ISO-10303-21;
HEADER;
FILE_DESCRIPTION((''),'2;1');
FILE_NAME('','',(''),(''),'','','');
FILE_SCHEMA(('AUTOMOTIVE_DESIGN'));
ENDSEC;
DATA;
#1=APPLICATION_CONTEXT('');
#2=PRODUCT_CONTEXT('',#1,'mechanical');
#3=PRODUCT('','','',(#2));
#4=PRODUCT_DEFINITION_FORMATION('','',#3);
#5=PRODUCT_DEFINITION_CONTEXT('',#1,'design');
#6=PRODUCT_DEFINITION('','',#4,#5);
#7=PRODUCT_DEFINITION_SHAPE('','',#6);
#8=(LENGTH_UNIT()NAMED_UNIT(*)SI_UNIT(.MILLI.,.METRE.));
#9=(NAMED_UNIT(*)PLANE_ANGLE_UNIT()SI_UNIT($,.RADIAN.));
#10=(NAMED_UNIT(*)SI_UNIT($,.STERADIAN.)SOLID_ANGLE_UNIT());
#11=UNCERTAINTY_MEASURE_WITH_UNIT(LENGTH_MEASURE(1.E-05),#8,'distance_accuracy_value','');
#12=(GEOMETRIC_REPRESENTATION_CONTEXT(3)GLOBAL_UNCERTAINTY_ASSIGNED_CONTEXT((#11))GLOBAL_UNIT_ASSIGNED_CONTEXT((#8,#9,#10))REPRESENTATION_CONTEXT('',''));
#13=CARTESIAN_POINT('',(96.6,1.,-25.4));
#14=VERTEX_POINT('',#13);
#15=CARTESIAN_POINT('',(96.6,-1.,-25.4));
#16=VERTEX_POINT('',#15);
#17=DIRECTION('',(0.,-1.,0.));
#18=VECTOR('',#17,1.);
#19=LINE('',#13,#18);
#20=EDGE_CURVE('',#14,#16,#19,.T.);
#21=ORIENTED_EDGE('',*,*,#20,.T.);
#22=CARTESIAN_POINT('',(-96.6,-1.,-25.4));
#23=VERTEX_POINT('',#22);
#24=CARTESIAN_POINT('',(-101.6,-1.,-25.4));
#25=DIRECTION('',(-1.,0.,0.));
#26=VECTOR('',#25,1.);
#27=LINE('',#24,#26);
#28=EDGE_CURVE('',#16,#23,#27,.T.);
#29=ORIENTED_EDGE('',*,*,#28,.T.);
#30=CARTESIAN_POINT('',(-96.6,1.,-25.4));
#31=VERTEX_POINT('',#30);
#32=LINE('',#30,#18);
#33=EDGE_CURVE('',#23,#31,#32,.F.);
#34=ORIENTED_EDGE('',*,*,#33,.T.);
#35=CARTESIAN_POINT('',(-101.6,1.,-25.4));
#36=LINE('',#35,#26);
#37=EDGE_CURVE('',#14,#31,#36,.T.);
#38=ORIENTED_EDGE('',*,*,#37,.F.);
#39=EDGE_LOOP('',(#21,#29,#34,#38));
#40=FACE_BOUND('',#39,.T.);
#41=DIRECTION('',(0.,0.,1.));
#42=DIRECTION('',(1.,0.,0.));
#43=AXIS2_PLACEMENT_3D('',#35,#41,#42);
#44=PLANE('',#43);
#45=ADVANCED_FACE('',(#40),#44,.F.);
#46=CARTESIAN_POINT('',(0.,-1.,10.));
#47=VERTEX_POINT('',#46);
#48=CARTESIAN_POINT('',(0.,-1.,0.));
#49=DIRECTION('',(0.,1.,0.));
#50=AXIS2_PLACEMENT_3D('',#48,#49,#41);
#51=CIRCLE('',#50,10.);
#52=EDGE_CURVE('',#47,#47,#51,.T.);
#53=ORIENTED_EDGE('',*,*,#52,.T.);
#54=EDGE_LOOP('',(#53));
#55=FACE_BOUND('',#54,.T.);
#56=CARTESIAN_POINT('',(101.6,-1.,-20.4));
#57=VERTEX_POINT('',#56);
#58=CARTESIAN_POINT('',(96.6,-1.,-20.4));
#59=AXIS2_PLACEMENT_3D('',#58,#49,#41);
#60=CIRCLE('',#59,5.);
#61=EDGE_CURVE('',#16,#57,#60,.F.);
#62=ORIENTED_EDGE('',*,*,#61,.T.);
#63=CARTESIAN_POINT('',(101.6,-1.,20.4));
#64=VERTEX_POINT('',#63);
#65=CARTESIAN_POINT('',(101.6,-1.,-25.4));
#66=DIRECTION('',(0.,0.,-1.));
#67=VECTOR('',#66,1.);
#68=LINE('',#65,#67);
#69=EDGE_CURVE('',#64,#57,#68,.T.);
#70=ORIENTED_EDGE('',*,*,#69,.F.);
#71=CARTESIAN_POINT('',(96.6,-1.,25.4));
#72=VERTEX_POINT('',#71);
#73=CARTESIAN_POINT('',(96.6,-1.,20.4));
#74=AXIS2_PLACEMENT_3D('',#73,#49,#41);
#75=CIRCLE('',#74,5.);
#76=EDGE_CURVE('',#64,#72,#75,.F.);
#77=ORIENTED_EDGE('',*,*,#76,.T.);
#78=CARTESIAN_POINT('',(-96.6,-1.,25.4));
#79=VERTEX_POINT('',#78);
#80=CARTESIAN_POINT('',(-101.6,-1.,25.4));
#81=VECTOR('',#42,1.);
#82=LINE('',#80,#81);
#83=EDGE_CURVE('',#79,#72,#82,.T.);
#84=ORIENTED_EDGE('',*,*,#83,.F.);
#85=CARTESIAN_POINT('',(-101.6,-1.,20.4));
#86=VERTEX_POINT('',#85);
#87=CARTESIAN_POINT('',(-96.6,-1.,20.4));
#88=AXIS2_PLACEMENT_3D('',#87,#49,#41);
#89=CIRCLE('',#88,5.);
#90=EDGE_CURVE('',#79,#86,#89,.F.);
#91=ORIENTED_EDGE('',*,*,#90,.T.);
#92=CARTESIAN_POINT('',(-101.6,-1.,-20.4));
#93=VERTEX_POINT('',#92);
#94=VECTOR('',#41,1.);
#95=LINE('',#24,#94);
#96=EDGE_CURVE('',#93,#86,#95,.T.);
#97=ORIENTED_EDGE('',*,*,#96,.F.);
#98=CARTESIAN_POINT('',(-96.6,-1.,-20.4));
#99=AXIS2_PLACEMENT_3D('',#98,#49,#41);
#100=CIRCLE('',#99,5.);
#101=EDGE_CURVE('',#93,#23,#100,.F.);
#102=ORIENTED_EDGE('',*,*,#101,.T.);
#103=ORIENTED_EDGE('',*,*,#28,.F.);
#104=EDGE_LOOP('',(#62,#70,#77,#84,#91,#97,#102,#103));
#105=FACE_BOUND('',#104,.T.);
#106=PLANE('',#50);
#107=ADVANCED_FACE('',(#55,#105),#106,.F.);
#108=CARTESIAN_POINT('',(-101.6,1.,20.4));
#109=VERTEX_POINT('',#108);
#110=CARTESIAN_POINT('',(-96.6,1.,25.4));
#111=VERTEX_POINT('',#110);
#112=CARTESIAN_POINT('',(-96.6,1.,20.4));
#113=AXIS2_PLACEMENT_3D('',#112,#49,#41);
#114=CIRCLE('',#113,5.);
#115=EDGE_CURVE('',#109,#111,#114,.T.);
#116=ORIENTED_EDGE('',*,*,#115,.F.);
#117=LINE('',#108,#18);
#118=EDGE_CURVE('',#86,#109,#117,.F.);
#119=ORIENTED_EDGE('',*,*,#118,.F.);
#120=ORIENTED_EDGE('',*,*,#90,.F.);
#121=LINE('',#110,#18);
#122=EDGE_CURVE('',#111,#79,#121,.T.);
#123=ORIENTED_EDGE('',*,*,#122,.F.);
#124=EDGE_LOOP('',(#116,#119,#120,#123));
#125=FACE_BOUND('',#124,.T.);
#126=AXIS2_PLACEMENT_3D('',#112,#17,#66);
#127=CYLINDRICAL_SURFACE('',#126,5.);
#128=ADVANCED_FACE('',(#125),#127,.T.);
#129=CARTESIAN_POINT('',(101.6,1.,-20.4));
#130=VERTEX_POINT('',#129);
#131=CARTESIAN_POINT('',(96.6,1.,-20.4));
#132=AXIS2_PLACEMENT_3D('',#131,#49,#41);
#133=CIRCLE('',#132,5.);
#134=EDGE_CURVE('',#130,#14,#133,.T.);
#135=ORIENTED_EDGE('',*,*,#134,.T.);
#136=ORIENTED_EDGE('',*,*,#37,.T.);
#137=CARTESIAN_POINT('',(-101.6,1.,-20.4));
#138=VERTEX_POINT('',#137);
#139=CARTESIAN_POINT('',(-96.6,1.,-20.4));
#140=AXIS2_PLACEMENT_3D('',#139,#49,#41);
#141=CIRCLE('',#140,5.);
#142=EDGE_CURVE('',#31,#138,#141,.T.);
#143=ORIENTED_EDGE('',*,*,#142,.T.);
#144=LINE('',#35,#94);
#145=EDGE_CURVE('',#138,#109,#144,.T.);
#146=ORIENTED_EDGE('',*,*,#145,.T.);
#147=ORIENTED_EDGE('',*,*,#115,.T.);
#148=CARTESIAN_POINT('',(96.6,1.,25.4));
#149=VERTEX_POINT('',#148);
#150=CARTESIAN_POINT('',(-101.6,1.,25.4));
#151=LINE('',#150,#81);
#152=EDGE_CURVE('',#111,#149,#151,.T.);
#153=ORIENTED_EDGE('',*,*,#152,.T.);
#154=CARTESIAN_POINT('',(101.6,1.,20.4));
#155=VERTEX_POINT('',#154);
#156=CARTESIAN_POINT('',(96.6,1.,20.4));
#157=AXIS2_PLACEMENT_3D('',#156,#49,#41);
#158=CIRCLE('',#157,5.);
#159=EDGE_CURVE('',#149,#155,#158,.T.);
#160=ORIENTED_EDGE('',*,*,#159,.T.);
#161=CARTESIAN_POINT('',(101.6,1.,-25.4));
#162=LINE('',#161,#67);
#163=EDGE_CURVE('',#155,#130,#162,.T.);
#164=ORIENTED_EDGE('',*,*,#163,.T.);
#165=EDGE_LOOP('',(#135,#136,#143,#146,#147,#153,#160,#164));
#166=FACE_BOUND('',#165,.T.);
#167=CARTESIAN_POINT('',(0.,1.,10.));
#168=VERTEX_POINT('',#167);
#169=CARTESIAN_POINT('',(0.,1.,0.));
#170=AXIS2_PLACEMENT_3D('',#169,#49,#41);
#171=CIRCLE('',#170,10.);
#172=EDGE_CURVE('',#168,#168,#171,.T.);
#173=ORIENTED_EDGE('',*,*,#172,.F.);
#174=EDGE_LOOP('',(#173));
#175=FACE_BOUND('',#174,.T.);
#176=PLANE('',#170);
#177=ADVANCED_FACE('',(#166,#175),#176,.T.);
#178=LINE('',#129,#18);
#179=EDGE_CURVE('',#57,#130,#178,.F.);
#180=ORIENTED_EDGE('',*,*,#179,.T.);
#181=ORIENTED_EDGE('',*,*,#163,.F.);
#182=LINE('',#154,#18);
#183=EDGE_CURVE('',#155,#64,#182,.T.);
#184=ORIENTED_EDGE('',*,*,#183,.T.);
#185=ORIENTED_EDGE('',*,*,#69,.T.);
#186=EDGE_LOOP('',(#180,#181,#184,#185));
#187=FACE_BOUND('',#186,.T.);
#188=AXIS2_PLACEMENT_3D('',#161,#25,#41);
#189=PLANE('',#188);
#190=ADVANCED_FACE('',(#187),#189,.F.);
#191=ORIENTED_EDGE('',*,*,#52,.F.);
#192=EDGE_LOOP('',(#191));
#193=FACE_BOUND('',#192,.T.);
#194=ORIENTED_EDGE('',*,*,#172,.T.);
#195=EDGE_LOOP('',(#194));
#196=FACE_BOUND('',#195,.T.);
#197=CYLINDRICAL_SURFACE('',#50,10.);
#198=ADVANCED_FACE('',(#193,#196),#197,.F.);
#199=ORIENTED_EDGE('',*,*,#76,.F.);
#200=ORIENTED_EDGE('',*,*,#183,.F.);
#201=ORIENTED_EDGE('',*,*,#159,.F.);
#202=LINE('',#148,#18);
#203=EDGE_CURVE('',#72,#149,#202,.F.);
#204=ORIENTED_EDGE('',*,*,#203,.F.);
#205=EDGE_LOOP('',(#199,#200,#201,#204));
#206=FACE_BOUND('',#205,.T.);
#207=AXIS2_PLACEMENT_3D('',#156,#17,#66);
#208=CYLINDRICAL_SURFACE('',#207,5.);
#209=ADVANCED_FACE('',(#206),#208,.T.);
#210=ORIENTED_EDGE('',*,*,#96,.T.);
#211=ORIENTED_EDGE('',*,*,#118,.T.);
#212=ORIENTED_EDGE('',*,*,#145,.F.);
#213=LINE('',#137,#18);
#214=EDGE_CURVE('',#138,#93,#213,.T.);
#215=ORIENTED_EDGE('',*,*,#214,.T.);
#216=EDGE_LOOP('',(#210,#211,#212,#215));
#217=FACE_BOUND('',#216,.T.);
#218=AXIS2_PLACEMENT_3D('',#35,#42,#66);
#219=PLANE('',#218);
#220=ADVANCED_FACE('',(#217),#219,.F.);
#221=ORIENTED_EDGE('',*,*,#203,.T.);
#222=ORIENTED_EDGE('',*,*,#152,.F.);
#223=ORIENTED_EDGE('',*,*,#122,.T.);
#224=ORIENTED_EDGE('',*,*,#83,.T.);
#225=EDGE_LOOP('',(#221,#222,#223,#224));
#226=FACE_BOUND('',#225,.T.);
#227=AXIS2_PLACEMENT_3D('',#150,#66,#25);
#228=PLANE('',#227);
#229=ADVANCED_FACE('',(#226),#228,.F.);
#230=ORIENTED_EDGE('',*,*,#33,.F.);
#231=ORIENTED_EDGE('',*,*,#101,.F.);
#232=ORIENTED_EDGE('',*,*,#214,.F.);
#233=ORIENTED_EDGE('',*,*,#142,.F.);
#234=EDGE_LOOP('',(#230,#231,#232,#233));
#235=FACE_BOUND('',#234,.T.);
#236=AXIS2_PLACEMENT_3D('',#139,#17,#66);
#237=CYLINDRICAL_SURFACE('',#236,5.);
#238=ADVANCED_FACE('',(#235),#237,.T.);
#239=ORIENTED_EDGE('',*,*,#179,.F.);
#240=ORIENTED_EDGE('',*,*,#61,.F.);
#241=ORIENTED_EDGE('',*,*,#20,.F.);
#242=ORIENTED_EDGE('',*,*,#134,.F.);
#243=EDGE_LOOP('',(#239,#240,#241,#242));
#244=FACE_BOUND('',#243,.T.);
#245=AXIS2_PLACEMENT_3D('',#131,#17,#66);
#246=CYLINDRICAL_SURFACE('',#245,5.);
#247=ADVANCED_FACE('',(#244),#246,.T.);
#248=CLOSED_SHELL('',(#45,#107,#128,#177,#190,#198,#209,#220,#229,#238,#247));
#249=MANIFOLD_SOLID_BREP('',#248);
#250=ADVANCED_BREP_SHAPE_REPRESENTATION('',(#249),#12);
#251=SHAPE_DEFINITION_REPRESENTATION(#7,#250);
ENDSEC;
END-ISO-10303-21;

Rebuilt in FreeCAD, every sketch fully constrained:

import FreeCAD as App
import Part
import Sketcher


def edges_at(feature, points):
    """Names of the edges that pass closest to the given points."""
    edges = feature.Shape.Edges
    near = lambda p: min(range(len(edges)), key=lambda i: edges[i].distToShape(Part.Vertex(*p))[0])
    return sorted({f"Edge{near(p) + 1}" for p in points})


def add_polygon(sketch, points):
    """Adds a closed chain of lines whose ends are joined by coincident constraints."""
    first, n = sketch.GeometryCount, len(points)
    for a, b in zip(points, points[1:] + points[:1]):
        sketch.addGeometry(Part.LineSegment(App.Vector(*a, 0), App.Vector(*b, 0)), False)
    for i in range(n):
        sketch.addConstraint(Sketcher.Constraint("Coincident", first + i, 2, first + (i + 1) % n, 1))

doc = App.newDocument("Part")
body = doc.addObject("PartDesign::Body", "Body")

sketch1 = doc.addObject("Sketcher::SketchObject", "Sketch")
body.addObject(sketch1)
sketch1.AttachmentSupport = (doc.XZ_Plane, [""])
sketch1.MapMode = "FlatFace"
add_polygon(sketch1, [(-102, -25), (-102, 25), (102, 25), (102, -25)])
sketch1.addConstraint(Sketcher.Constraint("Vertical", 0))
sketch1.addConstraint(Sketcher.Constraint("Horizontal", 1))
sketch1.addConstraint(Sketcher.Constraint("Vertical", 2))
sketch1.addConstraint(Sketcher.Constraint("Horizontal", 3))
sketch1.addConstraint(Sketcher.Constraint("Symmetric", 0, 2, 2, 2, -1, 1))
sketch1.addConstraint(Sketcher.Constraint("DistanceX", 1, 1, 1, 2, 203.2))
sketch1.addConstraint(Sketcher.Constraint("DistanceY", 0, 1, 0, 2, 50.8))
pad1 = doc.addObject("PartDesign::Pad", "Pad")
body.addObject(pad1)
pad1.Profile = sketch1
pad1.Length = 2
pad1.Midplane = True
doc.recompute()

fillet = doc.addObject("PartDesign::Fillet", "Fillet")
body.addObject(fillet)
fillet.Base = (pad1, edges_at(pad1, [
    (101.6, 0, 25.4),
    (-101.6, 0, 25.4),
    (-101.6, 0, -25.4),
    (101.6, 0, -25.4),
]))
fillet.Radius = 5

sketch2 = doc.addObject("Sketcher::SketchObject", "Sketch001")
body.addObject(sketch2)
sketch2.AttachmentSupport = (doc.XZ_Plane, [""])
sketch2.MapMode = "FlatFace"
sketch2.addGeometry(Part.Circle(App.Vector(0, 0, 0), App.Vector(0, 0, 1), 10), False)
sketch2.addConstraint(Sketcher.Constraint("Coincident", 0, 3, -1, 1))
sketch2.addConstraint(Sketcher.Constraint("Diameter", 0, 20.0))
pocket1 = doc.addObject("PartDesign::Pocket", "Pocket")
body.addObject(pocket1)
pocket1.Profile = sketch2
pocket1.Type = "ThroughAll"
pocket1.Midplane = True

doc.recompute()
